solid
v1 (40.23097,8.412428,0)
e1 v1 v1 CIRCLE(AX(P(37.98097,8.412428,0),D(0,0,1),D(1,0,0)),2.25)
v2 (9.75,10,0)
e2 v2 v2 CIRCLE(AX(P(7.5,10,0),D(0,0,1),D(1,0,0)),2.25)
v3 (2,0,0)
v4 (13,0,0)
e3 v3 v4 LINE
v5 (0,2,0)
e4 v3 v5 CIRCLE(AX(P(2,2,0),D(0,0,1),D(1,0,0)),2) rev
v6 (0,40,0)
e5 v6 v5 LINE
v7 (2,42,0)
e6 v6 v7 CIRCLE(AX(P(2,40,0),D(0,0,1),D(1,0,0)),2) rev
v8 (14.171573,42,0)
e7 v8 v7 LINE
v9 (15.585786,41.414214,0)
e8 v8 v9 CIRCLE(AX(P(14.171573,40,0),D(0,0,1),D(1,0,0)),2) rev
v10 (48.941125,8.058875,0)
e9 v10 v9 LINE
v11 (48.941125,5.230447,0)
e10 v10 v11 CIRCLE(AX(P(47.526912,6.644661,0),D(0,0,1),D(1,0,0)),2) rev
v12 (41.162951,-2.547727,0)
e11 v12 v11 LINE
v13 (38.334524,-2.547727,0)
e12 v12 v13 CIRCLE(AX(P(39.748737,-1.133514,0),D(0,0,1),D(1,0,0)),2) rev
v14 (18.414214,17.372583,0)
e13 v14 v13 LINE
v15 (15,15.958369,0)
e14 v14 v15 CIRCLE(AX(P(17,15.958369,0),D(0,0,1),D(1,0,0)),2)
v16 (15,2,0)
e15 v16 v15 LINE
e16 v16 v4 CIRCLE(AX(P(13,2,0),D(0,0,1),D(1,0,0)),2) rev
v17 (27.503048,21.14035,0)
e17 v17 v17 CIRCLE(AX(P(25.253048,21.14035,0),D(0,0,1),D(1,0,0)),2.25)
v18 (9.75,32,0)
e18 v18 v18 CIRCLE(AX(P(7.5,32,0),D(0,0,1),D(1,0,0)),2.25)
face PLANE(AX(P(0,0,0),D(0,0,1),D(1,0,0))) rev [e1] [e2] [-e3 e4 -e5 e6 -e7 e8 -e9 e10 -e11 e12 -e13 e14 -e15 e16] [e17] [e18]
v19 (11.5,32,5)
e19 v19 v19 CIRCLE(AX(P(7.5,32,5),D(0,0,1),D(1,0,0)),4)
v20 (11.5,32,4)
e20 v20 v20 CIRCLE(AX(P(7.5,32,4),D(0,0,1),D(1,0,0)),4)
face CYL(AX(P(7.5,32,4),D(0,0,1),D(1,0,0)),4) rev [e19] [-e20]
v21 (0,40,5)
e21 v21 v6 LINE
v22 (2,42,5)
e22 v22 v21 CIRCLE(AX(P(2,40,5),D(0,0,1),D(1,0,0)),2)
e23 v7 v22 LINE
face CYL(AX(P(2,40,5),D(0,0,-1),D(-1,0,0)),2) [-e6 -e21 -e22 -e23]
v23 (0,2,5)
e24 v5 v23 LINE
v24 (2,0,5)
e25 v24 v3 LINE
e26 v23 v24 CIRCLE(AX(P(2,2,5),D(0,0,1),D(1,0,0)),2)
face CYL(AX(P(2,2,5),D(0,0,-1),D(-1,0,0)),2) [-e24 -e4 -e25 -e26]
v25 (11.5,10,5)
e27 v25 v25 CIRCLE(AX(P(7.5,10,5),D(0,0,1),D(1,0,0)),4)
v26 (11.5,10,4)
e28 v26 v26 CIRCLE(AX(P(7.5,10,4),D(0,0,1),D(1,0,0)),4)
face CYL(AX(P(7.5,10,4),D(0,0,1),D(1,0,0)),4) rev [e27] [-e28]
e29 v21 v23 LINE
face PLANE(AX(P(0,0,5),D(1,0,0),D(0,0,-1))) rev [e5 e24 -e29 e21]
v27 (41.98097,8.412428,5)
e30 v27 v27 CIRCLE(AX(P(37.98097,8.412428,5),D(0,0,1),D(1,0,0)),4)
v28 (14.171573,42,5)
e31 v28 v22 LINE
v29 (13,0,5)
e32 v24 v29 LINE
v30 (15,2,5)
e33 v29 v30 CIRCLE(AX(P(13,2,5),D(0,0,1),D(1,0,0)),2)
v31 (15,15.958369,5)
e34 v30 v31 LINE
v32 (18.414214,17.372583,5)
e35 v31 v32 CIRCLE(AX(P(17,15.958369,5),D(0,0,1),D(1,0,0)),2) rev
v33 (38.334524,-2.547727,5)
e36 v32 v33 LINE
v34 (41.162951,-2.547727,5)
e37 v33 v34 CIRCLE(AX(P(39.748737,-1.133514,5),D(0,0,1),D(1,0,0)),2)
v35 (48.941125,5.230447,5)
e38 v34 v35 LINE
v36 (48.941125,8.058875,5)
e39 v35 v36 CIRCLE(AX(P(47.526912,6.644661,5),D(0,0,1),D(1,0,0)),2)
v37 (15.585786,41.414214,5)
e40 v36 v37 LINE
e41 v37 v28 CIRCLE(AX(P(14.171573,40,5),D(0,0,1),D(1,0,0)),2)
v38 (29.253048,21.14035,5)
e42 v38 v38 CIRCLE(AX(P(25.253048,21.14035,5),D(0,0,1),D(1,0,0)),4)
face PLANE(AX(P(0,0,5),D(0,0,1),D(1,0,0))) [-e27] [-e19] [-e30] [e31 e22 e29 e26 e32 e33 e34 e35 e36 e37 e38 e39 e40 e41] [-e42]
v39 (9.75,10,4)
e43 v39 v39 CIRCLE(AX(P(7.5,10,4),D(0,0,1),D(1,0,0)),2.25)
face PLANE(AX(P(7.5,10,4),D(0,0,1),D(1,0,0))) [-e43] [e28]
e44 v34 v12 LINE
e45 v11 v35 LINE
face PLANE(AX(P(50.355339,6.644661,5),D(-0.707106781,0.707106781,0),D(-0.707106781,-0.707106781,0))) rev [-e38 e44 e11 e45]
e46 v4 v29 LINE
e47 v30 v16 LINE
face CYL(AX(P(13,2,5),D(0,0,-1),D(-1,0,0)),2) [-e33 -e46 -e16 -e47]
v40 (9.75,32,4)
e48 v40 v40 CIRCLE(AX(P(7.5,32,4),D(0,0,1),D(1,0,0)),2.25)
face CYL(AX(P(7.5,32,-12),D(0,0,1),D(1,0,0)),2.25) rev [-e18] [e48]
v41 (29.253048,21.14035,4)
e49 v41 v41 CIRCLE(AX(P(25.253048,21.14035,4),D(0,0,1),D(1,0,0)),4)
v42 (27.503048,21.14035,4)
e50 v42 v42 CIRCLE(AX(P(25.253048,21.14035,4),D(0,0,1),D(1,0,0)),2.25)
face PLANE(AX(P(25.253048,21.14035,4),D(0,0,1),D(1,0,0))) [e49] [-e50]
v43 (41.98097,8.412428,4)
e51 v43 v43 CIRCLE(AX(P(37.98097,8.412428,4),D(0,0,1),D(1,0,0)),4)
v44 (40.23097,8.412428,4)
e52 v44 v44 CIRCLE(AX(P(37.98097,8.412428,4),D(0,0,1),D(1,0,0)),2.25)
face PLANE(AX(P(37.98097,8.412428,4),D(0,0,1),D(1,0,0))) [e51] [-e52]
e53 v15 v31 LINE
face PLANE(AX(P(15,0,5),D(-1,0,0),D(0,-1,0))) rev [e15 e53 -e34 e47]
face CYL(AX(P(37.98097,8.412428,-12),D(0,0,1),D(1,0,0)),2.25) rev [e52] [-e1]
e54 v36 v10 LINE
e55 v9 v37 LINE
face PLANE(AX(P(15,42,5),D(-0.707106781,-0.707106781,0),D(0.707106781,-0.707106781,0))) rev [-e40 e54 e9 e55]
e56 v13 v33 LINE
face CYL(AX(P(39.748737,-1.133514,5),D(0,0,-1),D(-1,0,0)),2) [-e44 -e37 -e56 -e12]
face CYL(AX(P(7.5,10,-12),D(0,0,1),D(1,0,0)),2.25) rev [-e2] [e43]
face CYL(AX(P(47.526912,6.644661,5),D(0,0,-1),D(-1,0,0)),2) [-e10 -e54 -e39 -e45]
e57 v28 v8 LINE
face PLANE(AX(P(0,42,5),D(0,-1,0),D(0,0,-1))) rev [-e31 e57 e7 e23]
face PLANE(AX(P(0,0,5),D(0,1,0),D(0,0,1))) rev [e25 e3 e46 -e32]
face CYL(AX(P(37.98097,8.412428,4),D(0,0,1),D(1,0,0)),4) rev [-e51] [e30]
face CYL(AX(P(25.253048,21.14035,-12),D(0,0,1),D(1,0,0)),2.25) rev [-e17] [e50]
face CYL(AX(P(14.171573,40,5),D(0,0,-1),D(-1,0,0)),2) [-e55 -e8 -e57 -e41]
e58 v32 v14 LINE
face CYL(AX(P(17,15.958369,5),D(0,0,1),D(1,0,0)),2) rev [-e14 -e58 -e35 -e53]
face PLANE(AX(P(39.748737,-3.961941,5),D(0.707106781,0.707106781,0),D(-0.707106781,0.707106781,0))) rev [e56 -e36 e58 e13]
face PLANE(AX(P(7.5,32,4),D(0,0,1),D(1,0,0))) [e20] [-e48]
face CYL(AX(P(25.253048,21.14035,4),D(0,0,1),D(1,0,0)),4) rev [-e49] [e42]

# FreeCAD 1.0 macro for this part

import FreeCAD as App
import Part
import Sketcher

V = App.Vector
Q = App.Units.Quantity


def edges_at(feature, points):
    """Names of the edges that pass closest to the given points."""
    edges = feature.Shape.Edges
    near = lambda p: min(range(len(edges)), key=lambda i: edges[i].distToShape(Part.Vertex(*p))[0])
    return sorted({f"Edge{near(p) + 1}" for p in points})


def add_polygon(sketch, points):
    """Adds a closed chain of lines whose ends are joined by coincident constraints."""
    first, n = sketch.GeometryCount, len(points)
    for a, b in zip(points, points[1:] + points[:1]):
        sketch.addGeometry(Part.LineSegment(App.Vector(*a, 0), App.Vector(*b, 0)), False)
    for i in range(n):
        sketch.addConstraint(Sketcher.Constraint("Coincident", first + i, 2, first + (i + 1) % n, 1))

doc = App.newDocument("Part")
body = doc.addObject("PartDesign::Body", "Body")

# Sketch on XY plane
sketch1 = body.newObject("Sketcher::SketchObject", "Sketch")
sketch1.AttachmentSupport = (doc.getObject("XY_Plane"), [""])
sketch1.MapMode = "FlatFace"
add_polygon(sketch1, [(0, 42), (0, 0), (15, 0), (15, 21), (40, -4), (50, 7), (15, 42)])  # lines 0-6
sketch1.addConstraint([
    Sketcher.Constraint("Vertical", 0),
    Sketcher.Constraint("Horizontal", 1),
    Sketcher.Constraint("Vertical", 2),
    Sketcher.Constraint("Horizontal", 6),
    Sketcher.Constraint("Coincident", 0, 2, -1, 1),
    Sketcher.Constraint("Perpendicular", 3, 4),
    Sketcher.Constraint("Perpendicular", 4, 5),
    Sketcher.Constraint("Vertical", 2, 2, 5, 2),
    Sketcher.Constraint("DistanceX", 1, 1, 1, 2, 15.0),
    Sketcher.Constraint("DistanceY", 0, 2, 0, 1, 42.0),
    Sketcher.Constraint("Angle", 3, Q("-45 deg")),
    Sketcher.Constraint("Distance", 3, 35.0),
    Sketcher.Constraint("Distance", 4, 15.0),
])
pad1 = body.newObject("PartDesign::Pad", "Pad")
pad1.Profile = sketch1
pad1.Length = 5

# Sketch on XY plane
sketch2 = body.newObject("Sketcher::SketchObject", "Sketch001")
sketch2.AttachmentSupport = (doc.getObject("XY_Plane"), [""])
sketch2.MapMode = "FlatFace"
sketch2.AttachmentOffset = App.Placement(V(0, 0, 5), App.Rotation())
sketch2.addGeometry([
    Part.Circle(V(7.5, 10, 0), V(0, 0, 1), 4),
    Part.Circle(V(7.5, 32, 0), V(0, 0, 1), 4),
    Part.Circle(V(38, 8.4, 0), V(0, 0, 1), 4),
    Part.Circle(V(25.3, 21.1, 0), V(0, 0, 1), 4),
], False)
sketch2.addConstraint([
    Sketcher.Constraint("Equal", 0, 1),
    Sketcher.Constraint("Equal", 1, 2),
    Sketcher.Constraint("Equal", 2, 3),
    Sketcher.Constraint("Vertical", 0, 3, 1, 3),
    Sketcher.Constraint("Diameter", 0, 8.0),
    Sketcher.Constraint("DistanceY", -1, 1, 0, 3, 10.0),
    Sketcher.Constraint("DistanceY", -1, 1, 1, 3, 32.0),
    Sketcher.Constraint("DistanceX", -1, 1, 0, 3, 7.5),
    Sketcher.Constraint("DistanceX", -1, 1, 2, 3, 37.98097),
    Sketcher.Constraint("DistanceX", -1, 1, 3, 3, 25.253048),
    Sketcher.Constraint("DistanceY", -1, 1, 3, 3, 21.14035),
    Sketcher.Constraint("DistanceY", -1, 1, 2, 3, 8.412428),
])
pocket1 = body.newObject("PartDesign::Pocket", "Pocket")
pocket1.Profile = sketch2
pocket1.Length = 1

# Sketch on XY plane
sketch3 = body.newObject("Sketcher::SketchObject", "Sketch002")
sketch3.AttachmentSupport = (doc.getObject("XY_Plane"), [""])
sketch3.MapMode = "FlatFace"
sketch3.AttachmentOffset = App.Placement(V(0, 0, 4), App.Rotation())
sketch3.addGeometry([
    Part.Circle(V(7.5, 32, 0), V(0, 0, 1), 2.2),
    Part.Circle(V(7.5, 10, 0), V(0, 0, 1), 2.2),
    Part.Circle(V(25.3, 21.1, 0), V(0, 0, 1), 2.2),
    Part.Circle(V(38, 8.4, 0), V(0, 0, 1), 2.2),
], False)
sketch3.addConstraint([
    Sketcher.Constraint("Equal", 0, 1),
    Sketcher.Constraint("Equal", 1, 2),
    Sketcher.Constraint("Equal", 2, 3),
    Sketcher.Constraint("Vertical", 0, 3, 1, 3),
    Sketcher.Constraint("Diameter", 0, 4.5),
    Sketcher.Constraint("DistanceY", -1, 1, 0, 3, 32.0),
    Sketcher.Constraint("DistanceY", -1, 1, 1, 3, 10.0),
    Sketcher.Constraint("DistanceX", -1, 1, 0, 3, 7.5),
    Sketcher.Constraint("DistanceX", -1, 1, 2, 3, 25.253048),
    Sketcher.Constraint("DistanceY", -1, 1, 2, 3, 21.14035),
    Sketcher.Constraint("DistanceX", -1, 1, 3, 3, 37.98097),
    Sketcher.Constraint("DistanceY", -1, 1, 3, 3, 8.412428),
])
pocket2 = body.newObject("PartDesign::Pocket", "Pocket001")
pocket2.Profile = sketch3
pocket2.Length = 16
doc.recompute()

fillet = body.newObject("PartDesign::Fillet", "Fillet")
fillet.Base = (pocket2, edges_at(pocket2, [
    (0, 0, 2.5),
    (0, 42, 2.5),
    (15, 42, 2.5),
    (50.355, 6.645, 2.5),
    (39.749, -3.962, 2.5),
    (15, 20.787, 2.5),
    (15, 0, 2.5),
]))
fillet.Radius = 2

doc.recompute()
